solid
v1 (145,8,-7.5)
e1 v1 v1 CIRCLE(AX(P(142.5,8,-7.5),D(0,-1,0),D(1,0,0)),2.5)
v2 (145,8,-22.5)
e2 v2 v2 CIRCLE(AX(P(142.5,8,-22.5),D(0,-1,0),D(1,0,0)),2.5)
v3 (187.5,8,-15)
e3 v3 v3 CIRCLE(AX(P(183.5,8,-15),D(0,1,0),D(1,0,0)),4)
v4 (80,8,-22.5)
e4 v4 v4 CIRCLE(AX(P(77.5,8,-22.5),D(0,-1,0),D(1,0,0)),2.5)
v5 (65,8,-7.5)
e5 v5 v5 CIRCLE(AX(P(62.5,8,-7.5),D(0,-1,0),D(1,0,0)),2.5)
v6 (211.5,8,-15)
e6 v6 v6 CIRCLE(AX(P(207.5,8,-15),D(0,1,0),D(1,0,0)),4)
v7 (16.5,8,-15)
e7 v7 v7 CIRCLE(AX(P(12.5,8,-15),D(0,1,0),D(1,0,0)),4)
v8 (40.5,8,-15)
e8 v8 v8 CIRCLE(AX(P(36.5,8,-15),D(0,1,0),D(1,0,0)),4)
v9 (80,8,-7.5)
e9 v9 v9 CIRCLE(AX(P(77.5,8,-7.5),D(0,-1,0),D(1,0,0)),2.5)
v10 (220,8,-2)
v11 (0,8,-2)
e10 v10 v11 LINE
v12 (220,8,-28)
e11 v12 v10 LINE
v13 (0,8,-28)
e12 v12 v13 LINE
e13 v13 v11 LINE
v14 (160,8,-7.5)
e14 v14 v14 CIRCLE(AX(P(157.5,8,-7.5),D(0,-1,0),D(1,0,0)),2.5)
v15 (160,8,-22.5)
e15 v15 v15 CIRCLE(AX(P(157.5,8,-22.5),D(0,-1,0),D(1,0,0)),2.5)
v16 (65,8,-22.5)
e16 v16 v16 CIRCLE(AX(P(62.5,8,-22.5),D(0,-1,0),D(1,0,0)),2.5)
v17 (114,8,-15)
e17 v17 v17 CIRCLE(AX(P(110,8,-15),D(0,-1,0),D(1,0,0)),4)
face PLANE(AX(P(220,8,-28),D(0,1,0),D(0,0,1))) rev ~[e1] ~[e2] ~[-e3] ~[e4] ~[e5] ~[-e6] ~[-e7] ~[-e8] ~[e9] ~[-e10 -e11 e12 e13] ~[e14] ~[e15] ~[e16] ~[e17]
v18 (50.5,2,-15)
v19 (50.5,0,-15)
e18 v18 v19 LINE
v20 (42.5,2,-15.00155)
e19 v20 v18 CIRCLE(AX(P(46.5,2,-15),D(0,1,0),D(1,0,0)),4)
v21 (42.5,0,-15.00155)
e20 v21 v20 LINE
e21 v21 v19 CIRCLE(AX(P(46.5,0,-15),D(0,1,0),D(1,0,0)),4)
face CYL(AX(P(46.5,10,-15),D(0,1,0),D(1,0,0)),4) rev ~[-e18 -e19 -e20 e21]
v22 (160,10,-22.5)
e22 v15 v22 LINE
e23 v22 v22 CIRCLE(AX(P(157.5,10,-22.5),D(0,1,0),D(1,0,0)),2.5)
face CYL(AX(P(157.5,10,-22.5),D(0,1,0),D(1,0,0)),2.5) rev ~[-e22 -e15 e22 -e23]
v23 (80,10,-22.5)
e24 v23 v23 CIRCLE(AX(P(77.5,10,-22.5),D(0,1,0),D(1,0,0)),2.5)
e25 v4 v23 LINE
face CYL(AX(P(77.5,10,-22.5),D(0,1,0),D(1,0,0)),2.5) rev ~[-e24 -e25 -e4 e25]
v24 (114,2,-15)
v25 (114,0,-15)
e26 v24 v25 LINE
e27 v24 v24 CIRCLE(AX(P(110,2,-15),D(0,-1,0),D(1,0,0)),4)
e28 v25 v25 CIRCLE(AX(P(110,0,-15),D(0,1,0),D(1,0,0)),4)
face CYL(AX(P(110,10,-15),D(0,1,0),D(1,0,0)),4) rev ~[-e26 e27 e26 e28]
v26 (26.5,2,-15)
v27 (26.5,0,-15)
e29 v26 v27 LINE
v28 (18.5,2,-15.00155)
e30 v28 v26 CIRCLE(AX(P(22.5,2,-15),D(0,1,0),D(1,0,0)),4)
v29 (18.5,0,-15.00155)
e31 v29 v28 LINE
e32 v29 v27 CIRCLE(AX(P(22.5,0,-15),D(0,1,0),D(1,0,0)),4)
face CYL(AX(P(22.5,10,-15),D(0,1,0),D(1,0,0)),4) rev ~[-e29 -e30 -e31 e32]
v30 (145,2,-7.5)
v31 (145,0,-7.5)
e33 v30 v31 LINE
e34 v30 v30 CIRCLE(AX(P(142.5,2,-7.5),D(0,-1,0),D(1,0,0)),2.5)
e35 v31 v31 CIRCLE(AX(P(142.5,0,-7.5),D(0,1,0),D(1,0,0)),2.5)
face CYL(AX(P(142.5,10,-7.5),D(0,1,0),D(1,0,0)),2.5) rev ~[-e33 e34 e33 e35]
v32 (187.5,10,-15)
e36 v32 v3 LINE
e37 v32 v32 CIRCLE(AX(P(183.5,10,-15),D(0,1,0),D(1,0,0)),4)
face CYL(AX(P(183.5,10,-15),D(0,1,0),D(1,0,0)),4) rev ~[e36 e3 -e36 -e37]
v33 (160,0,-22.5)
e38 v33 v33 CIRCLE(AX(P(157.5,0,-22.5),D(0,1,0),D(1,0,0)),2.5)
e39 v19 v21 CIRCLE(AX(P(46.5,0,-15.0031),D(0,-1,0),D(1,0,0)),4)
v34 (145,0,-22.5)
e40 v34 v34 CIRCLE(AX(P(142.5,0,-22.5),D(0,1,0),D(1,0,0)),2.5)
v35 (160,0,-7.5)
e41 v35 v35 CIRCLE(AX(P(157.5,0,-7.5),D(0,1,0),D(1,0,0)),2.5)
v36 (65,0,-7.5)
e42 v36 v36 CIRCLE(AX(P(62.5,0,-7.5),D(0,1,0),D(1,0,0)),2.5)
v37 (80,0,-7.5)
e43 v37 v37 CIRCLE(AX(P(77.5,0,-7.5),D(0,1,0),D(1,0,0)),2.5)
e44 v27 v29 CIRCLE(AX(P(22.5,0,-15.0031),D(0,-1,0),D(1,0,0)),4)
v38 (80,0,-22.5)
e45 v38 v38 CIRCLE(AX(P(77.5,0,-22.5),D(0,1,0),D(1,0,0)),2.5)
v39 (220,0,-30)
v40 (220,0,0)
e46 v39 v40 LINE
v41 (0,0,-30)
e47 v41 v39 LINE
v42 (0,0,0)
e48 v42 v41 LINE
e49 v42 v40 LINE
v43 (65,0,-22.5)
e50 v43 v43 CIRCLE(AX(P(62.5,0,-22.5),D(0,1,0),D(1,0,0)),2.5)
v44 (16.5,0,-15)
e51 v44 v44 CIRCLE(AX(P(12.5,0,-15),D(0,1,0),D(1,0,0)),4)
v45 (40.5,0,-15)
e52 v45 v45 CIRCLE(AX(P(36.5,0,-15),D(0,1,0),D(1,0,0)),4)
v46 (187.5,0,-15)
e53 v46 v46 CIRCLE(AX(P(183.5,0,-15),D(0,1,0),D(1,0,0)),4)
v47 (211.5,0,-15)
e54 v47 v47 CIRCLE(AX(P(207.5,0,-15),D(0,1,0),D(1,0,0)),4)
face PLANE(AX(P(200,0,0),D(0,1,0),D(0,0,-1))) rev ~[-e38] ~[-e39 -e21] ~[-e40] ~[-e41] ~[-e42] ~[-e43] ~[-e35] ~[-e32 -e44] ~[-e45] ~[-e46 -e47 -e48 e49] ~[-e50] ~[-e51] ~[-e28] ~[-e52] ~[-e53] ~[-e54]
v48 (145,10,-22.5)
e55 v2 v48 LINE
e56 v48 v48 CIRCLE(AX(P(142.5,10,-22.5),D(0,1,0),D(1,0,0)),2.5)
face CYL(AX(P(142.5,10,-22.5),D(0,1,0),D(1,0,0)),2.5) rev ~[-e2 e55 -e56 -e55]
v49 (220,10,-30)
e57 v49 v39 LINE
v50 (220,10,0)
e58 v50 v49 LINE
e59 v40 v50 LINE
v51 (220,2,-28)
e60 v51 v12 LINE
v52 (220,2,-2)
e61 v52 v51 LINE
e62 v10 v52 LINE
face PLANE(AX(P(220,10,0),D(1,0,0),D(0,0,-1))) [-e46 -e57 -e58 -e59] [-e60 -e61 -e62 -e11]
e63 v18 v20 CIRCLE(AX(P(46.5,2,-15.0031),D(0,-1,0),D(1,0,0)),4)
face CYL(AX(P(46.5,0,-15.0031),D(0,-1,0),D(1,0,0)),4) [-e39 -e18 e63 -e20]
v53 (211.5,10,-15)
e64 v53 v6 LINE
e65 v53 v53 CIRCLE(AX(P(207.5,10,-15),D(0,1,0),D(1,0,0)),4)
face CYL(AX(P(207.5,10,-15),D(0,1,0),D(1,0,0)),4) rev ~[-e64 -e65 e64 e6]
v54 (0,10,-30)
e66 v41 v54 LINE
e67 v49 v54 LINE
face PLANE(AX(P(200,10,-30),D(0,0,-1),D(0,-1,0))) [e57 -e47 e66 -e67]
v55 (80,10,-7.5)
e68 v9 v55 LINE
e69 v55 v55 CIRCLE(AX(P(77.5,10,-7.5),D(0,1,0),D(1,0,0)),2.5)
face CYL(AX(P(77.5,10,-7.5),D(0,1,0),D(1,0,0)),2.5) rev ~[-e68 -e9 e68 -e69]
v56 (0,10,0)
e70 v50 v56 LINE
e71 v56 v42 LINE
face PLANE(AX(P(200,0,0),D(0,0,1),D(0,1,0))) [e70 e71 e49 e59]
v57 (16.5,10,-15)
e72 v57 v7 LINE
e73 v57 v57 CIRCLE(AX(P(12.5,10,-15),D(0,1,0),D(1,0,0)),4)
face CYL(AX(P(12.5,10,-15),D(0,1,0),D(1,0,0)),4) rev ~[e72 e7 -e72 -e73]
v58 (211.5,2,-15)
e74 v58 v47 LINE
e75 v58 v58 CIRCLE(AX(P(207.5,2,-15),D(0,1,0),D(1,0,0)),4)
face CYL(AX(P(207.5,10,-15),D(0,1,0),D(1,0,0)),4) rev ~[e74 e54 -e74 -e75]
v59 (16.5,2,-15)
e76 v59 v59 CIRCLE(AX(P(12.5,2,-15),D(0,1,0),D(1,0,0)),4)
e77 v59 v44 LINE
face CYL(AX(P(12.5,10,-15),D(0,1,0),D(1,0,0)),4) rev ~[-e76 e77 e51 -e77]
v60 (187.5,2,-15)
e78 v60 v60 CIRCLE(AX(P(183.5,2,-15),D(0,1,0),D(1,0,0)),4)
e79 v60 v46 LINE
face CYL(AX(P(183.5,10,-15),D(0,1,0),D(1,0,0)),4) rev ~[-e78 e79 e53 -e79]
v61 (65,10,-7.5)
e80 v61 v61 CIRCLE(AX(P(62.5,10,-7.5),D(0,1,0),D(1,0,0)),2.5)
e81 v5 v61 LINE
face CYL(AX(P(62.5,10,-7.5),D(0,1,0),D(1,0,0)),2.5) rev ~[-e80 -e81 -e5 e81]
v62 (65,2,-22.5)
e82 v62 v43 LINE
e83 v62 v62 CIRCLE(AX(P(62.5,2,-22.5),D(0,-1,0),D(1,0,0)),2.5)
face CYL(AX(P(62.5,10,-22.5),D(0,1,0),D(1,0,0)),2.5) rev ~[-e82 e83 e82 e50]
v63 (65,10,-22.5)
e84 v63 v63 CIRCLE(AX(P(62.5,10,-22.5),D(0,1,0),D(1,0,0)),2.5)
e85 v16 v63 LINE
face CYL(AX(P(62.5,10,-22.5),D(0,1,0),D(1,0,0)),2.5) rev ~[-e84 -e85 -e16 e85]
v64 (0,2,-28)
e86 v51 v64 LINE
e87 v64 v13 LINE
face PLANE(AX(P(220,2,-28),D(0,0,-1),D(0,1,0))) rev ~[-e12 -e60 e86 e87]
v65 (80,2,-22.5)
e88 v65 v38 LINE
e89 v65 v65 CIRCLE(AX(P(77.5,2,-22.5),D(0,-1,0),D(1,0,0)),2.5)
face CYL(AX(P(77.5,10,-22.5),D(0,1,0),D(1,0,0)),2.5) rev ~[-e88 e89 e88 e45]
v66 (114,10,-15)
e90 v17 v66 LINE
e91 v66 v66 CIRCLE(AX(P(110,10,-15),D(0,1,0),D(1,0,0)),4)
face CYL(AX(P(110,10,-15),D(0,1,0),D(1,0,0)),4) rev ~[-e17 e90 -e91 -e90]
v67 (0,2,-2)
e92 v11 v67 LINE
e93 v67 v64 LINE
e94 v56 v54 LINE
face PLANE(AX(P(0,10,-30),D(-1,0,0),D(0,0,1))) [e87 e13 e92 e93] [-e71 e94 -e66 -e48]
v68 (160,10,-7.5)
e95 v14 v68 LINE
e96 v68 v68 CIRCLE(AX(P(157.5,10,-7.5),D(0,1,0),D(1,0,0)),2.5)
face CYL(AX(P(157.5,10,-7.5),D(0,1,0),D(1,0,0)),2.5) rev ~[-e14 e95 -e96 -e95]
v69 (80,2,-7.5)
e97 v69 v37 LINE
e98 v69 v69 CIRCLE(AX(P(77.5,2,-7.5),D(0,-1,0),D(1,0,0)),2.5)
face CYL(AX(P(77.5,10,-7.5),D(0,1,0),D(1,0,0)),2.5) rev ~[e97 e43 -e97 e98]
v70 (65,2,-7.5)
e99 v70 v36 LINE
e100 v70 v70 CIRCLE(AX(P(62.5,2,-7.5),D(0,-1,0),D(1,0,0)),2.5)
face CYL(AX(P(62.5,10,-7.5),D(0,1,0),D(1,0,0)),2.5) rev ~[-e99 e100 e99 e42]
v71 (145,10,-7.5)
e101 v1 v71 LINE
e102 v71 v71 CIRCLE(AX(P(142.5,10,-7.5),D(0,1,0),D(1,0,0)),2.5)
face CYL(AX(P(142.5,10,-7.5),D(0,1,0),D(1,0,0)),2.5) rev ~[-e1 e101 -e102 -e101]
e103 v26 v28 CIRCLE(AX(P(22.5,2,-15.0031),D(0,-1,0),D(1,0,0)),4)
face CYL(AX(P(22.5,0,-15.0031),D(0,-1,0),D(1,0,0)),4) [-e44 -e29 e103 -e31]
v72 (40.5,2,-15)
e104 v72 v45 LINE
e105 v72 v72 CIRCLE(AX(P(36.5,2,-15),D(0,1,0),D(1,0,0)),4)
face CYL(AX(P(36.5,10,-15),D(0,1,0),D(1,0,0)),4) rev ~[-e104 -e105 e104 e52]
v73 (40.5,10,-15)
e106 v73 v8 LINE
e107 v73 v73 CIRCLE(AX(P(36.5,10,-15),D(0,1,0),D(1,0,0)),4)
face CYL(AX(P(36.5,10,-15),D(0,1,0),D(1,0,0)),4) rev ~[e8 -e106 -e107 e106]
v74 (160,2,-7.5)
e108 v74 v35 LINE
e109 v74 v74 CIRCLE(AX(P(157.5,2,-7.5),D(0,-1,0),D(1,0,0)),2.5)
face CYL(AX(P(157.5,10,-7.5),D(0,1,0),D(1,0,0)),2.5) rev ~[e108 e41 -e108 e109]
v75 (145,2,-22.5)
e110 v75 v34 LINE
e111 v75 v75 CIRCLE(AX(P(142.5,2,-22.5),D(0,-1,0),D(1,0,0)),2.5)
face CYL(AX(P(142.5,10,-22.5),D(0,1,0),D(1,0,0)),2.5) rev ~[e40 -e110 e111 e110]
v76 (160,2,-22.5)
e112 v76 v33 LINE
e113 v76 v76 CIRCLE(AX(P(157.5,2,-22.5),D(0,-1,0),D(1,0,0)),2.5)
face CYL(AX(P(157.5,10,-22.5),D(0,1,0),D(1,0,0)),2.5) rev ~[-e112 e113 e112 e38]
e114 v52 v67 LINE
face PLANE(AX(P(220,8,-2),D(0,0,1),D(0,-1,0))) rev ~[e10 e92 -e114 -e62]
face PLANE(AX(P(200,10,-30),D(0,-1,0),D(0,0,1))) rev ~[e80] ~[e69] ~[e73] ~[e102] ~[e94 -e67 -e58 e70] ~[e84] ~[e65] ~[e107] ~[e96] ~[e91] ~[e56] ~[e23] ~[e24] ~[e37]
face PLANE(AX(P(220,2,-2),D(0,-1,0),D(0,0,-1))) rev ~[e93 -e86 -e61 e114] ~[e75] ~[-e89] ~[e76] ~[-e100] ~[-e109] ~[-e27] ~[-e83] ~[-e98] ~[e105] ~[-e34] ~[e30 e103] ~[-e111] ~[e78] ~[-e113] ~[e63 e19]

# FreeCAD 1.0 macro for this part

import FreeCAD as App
import Part
import Sketcher

V = App.Vector


def add_polygon(sketch, points):
    """Adds a closed chain of lines whose ends are joined by coincident constraints."""
    first, n = sketch.GeometryCount, len(points)
    for a, b in zip(points, points[1:] + points[:1]):
        sketch.addGeometry(Part.LineSegment(App.Vector(*a, 0), App.Vector(*b, 0)), False)
    for i in range(n):
        sketch.addConstraint(Sketcher.Constraint("Coincident", first + i, 2, first + (i + 1) % n, 1))

doc = App.newDocument("Part")
body = doc.addObject("PartDesign::Body", "Body")

# Sketch on YZ plane
sketch1 = body.newObject("Sketcher::SketchObject", "Sketch")
sketch1.AttachmentSupport = (doc.getObject("YZ_Plane"), [""])
sketch1.MapMode = "FlatFace"
add_polygon(sketch1, [(10, 0), (0, 0), (0, -30), (10, -30)])  # lines 0-3
sketch1.addConstraint(Sketcher.Constraint("Horizontal", 0))
sketch1.addConstraint(Sketcher.Constraint("Vertical", 1))
sketch1.addConstraint(Sketcher.Constraint("Horizontal", 2))
sketch1.addConstraint(Sketcher.Constraint("Vertical", 3))
sketch1.addConstraint(Sketcher.Constraint("Coincident", 0, 2, -1, 1))
sketch1.addConstraint(Sketcher.Constraint("DistanceX", 0, 2, 0, 1, 10.0))
sketch1.addConstraint(Sketcher.Constraint("DistanceY", 1, 2, 1, 1, 30.0))
pad1 = body.newObject("PartDesign::Pad", "Pad")
pad1.Profile = sketch1
pad1.Length = 200

# Sketch on YZ plane
sketch2 = body.newObject("Sketcher::SketchObject", "Sketch001")
sketch2.AttachmentSupport = (doc.getObject("YZ_Plane"), [""])
sketch2.MapMode = "FlatFace"
sketch2.AttachmentOffset = App.Placement(V(0, 0, 200), App.Rotation())
add_polygon(sketch2, [(1, -29), (9, -29), (9, -1), (1, -1)])  # lines 0-3
sketch2.addConstraint(Sketcher.Constraint("Horizontal", 0))
sketch2.addConstraint(Sketcher.Constraint("Vertical", 1))
sketch2.addConstraint(Sketcher.Constraint("Horizontal", 2))
sketch2.addConstraint(Sketcher.Constraint("Vertical", 3))
sketch2.addConstraint(Sketcher.Constraint("DistanceX", 0, 1, 0, 2, 8.0))
sketch2.addConstraint(Sketcher.Constraint("DistanceY", 1, 1, 1, 2, 28.0))
sketch2.addConstraint(Sketcher.Constraint("DistanceX", -1, 1, 0, 2, 9.0))
sketch2.addConstraint(Sketcher.Constraint("DistanceY", 0, 2, -1, 1, 29.0))
pocket1 = body.newObject("PartDesign::Pocket", "Pocket")
pocket1.Profile = sketch2
pocket1.Length = 303.2375

# Sketch on YZ plane
sketch3 = body.newObject("Sketcher::SketchObject", "Sketch002")
sketch3.AttachmentSupport = (doc.getObject("YZ_Plane"), [""])
sketch3.MapMode = "FlatFace"
sketch3.AttachmentOffset = App.Placement(V(0, 0, 200), App.Rotation())
add_polygon(sketch3, [(10, 0), (0, 0), (0, -30), (10, -30)])  # lines 0-3
sketch3.addConstraint(Sketcher.Constraint("Horizontal", 0))
sketch3.addConstraint(Sketcher.Constraint("Vertical", 1))
sketch3.addConstraint(Sketcher.Constraint("Horizontal", 2))
sketch3.addConstraint(Sketcher.Constraint("Vertical", 3))
sketch3.addConstraint(Sketcher.Constraint("Coincident", 0, 2, -1, 1))
sketch3.addConstraint(Sketcher.Constraint("DistanceX", 0, 2, 0, 1, 10.0))
sketch3.addConstraint(Sketcher.Constraint("DistanceY", 1, 2, 1, 1, 30.0))
pad2 = body.newObject("PartDesign::Pad", "Pad001")
pad2.Profile = sketch3
pad2.Length = 20

# Sketch on YZ plane
sketch4 = body.newObject("Sketcher::SketchObject", "Sketch003")
sketch4.AttachmentSupport = (doc.getObject("YZ_Plane"), [""])
sketch4.MapMode = "FlatFace"
sketch4.AttachmentOffset = App.Placement(V(0, 0, 220), App.Rotation())
add_polygon(sketch4, [(9, -1), (1, -1), (1, -29), (9, -29)])  # lines 0-3
sketch4.addConstraint(Sketcher.Constraint("Horizontal", 0))
sketch4.addConstraint(Sketcher.Constraint("Vertical", 1))
sketch4.addConstraint(Sketcher.Constraint("Horizontal", 2))
sketch4.addConstraint(Sketcher.Constraint("Vertical", 3))
sketch4.addConstraint(Sketcher.Constraint("DistanceX", 0, 2, 0, 1, 8.0))
sketch4.addConstraint(Sketcher.Constraint("DistanceY", 1, 2, 1, 1, 28.0))
sketch4.addConstraint(Sketcher.Constraint("DistanceX", -1, 1, 0, 2, 1.0))
sketch4.addConstraint(Sketcher.Constraint("DistanceY", 0, 2, -1, 1, 1.0))
pocket2 = body.newObject("PartDesign::Pocket", "Pocket001")
pocket2.Profile = sketch4
pocket2.Length = 750.25

# Sketch on XZ plane
sketch5 = body.newObject("Sketcher::SketchObject", "Sketch004")
sketch5.AttachmentSupport = (doc.getObject("XZ_Plane"), [""])
sketch5.MapMode = "FlatFace"
sketch5.AttachmentOffset = App.Placement(V(0, 0, -10), App.Rotation())
sketch5.addGeometry(Part.Circle(V(22.5, -15, 0), V(0, 0, 1), 4), False)
sketch5.addGeometry(Part.Circle(V(46.5, -15, 0), V(0, 0, 1), 4), False)
sketch5.addConstraint(Sketcher.Constraint("Equal", 0, 1))
sketch5.addConstraint(Sketcher.Constraint("Horizontal", 0, 3, 1, 3))
sketch5.addConstraint(Sketcher.Constraint("Diameter", 0, 8.0))
sketch5.addConstraint(Sketcher.Constraint("DistanceY", 0, 3, -1, 1, 15.0))
sketch5.addConstraint(Sketcher.Constraint("DistanceX", 0, 3, 1, 3, 24.0))
sketch5.addConstraint(Sketcher.Constraint("DistanceX", -1, 1, 0, 3, 22.5))
pocket3 = body.newObject("PartDesign::Pocket", "Pocket002")
pocket3.Profile = sketch5
pocket3.Length = 63.025
pocket3.Reversed = True

# Sketch on XZ plane
sketch6 = body.newObject("Sketcher::SketchObject", "Sketch005")
sketch6.AttachmentSupport = (doc.getObject("XZ_Plane"), [""])
sketch6.MapMode = "FlatFace"
sketch6.AttachmentOffset = App.Placement(V(0, 0, -10), App.Rotation())
sketch6.addGeometry(Part.Circle(V(173.5, -15, 0), V(0, 0, 1), 4), False)
sketch6.addGeometry(Part.Circle(V(197.5, -15, 0), V(0, 0, 1), 4), False)
sketch6.addConstraint(Sketcher.Constraint("Equal", 0, 1))
sketch6.addConstraint(Sketcher.Constraint("Horizontal", 0, 3, 1, 3))
sketch6.addConstraint(Sketcher.Constraint("Diameter", 0, 8.0))
sketch6.addConstraint(Sketcher.Constraint("DistanceY", 0, 3, -1, 1, 15.0))
sketch6.addConstraint(Sketcher.Constraint("DistanceX", 0, 3, 1, 3, 24.0))
sketch6.addConstraint(Sketcher.Constraint("DistanceX", -1, 1, 0, 3, 173.5))
pocket4 = body.newObject("PartDesign::Pocket", "Pocket003")
pocket4.Profile = sketch6
pocket4.Length = 120.175
pocket4.Reversed = True

# Sketch on XZ plane
sketch7 = body.newObject("Sketcher::SketchObject", "Sketch006")
sketch7.AttachmentSupport = (doc.getObject("XZ_Plane"), [""])
sketch7.MapMode = "FlatFace"
sketch7.AttachmentOffset = App.Placement(V(0, 0, -10), App.Rotation())
add_polygon(sketch7, [(10, -30), (0, -30), (0, 0), (10, 0)])  # lines 0-3
sketch7.addConstraint(Sketcher.Constraint("Horizontal", 0))
sketch7.addConstraint(Sketcher.Constraint("Vertical", 1))
sketch7.addConstraint(Sketcher.Constraint("Horizontal", 2))
sketch7.addConstraint(Sketcher.Constraint("Vertical", 3))
sketch7.addConstraint(Sketcher.Constraint("Coincident", 1, 2, -1, 1))
sketch7.addConstraint(Sketcher.Constraint("DistanceX", 0, 2, 0, 1, 10.0))
sketch7.addConstraint(Sketcher.Constraint("DistanceY", 1, 1, 1, 2, 30.0))
pocket5 = body.newObject("PartDesign::Pocket", "Pocket004")
pocket5.Profile = sketch7
pocket5.Length = 98.9
pocket5.Reversed = True

# Sketch on XZ plane
sketch8 = body.newObject("Sketcher::SketchObject", "Sketch007")
sketch8.AttachmentSupport = (doc.getObject("XZ_Plane"), [""])
sketch8.MapMode = "FlatFace"
sketch8.AttachmentOffset = App.Placement(V(0, 0, -10), App.Rotation())
add_polygon(sketch8, [(220, -30), (210, -30), (210, 0), (220, 0)])  # lines 0-3
sketch8.addConstraint(Sketcher.Constraint("Horizontal", 0))
sketch8.addConstraint(Sketcher.Constraint("Vertical", 1))
sketch8.addConstraint(Sketcher.Constraint("Horizontal", 2))
sketch8.addConstraint(Sketcher.Constraint("Vertical", 3))
sketch8.addConstraint(Sketcher.Constraint("PointOnObject", 1, 2, -1))
sketch8.addConstraint(Sketcher.Constraint("DistanceX", 0, 2, 0, 1, 10.0))
sketch8.addConstraint(Sketcher.Constraint("DistanceY", 1, 1, 1, 2, 30.0))
sketch8.addConstraint(Sketcher.Constraint("DistanceX", -1, 1, 0, 2, 210.0))
pocket6 = body.newObject("PartDesign::Pocket", "Pocket005")
pocket6.Profile = sketch8
pocket6.Length = 67.7875
pocket6.Reversed = True

# Sketch on XZ plane
sketch9 = body.newObject("Sketcher::SketchObject", "Sketch008")
sketch9.AttachmentSupport = (doc.getObject("XZ_Plane"), [""])
sketch9.MapMode = "FlatFace"
sketch9.AttachmentOffset = App.Placement(V(0, 0, -10), App.Rotation())
sketch9.addGeometry(Part.Circle(V(62.5, -7.5, 0), V(0, 0, 1), 2.5), False)
sketch9.addGeometry(Part.Circle(V(62.5, -22.5, 0), V(0, 0, 1), 2.5), False)
sketch9.addConstraint(Sketcher.Constraint("Equal", 0, 1))
sketch9.addConstraint(Sketcher.Constraint("Vertical", 0, 3, 1, 3))
sketch9.addConstraint(Sketcher.Constraint("Diameter", 0, 5.0))
sketch9.addConstraint(Sketcher.Constraint("DistanceY", 1, 3, 0, 3, 15.0))
sketch9.addConstraint(Sketcher.Constraint("DistanceX", -1, 1, 0, 3, 62.5))
sketch9.addConstraint(Sketcher.Constraint("DistanceY", 0, 3, -1, 1, 7.5))
pocket7 = body.newObject("PartDesign::Pocket", "Pocket006")
pocket7.Profile = sketch9
pocket7.Length = 97.95
pocket7.Reversed = True

# Sketch on XZ plane
sketch10 = body.newObject("Sketcher::SketchObject", "Sketch009")
sketch10.AttachmentSupport = (doc.getObject("XZ_Plane"), [""])
sketch10.MapMode = "FlatFace"
sketch10.AttachmentOffset = App.Placement(V(0, 0, -10), App.Rotation())
sketch10.addGeometry(Part.Circle(V(77.5, -22.5, 0), V(0, 0, 1), 2.5), False)
sketch10.addGeometry(Part.Circle(V(77.5, -7.5, 0), V(0, 0, 1), 2.5), False)
sketch10.addConstraint(Sketcher.Constraint("Equal", 0, 1))
sketch10.addConstraint(Sketcher.Constraint("Vertical", 0, 3, 1, 3))
sketch10.addConstraint(Sketcher.Constraint("Diameter", 0, 5.0))
sketch10.addConstraint(Sketcher.Constraint("DistanceY", 0, 3, 1, 3, 15.0))
sketch10.addConstraint(Sketcher.Constraint("DistanceX", -1, 1, 0, 3, 77.5))
sketch10.addConstraint(Sketcher.Constraint("DistanceY", 0, 3, -1, 1, 22.5))
pocket8 = body.newObject("PartDesign::Pocket", "Pocket007")
pocket8.Profile = sketch10
pocket8.Length = 108.425
pocket8.Reversed = True

# Sketch on XZ plane
sketch11 = body.newObject("Sketcher::SketchObject", "Sketch010")
sketch11.AttachmentSupport = (doc.getObject("XZ_Plane"), [""])
sketch11.MapMode = "FlatFace"
sketch11.AttachmentOffset = App.Placement(V(0, 0, -10), App.Rotation())
sketch11.addGeometry(Part.Circle(V(157.5, -22.5, 0), V(0, 0, 1), 2.5), False)
sketch11.addGeometry(Part.Circle(V(142.5, -22.5, 0), V(0, 0, 1), 2.5), False)
sketch11.addGeometry(Part.Circle(V(142.5, -7.5, 0), V(0, 0, 1), 2.5), False)
sketch11.addGeometry(Part.Circle(V(157.5, -7.5, 0), V(0, 0, 1), 2.5), False)
sketch11.addConstraint(Sketcher.Constraint("Equal", 0, 1))
sketch11.addConstraint(Sketcher.Constraint("Equal", 1, 2))
sketch11.addConstraint(Sketcher.Constraint("Equal", 2, 3))
sketch11.addConstraint(Sketcher.Constraint("Horizontal", 0, 3, 1, 3))
sketch11.addConstraint(Sketcher.Constraint("Horizontal", 2, 3, 3, 3))
sketch11.addConstraint(Sketcher.Constraint("Vertical", 1, 3, 2, 3))
sketch11.addConstraint(Sketcher.Constraint("Vertical", 0, 3, 3, 3))
sketch11.addConstraint(Sketcher.Constraint("Diameter", 0, 5.0))
sketch11.addConstraint(Sketcher.Constraint("DistanceX", 1, 3, 0, 3, 15.0))
sketch11.addConstraint(Sketcher.Constraint("DistanceY", 1, 3, 2, 3, 15.0))
sketch11.addConstraint(Sketcher.Constraint("DistanceX", -1, 1, 0, 3, 157.5))
sketch11.addConstraint(Sketcher.Constraint("DistanceY", 0, 3, -1, 1, 22.5))
pocket9 = body.newObject("PartDesign::Pocket", "Pocket008")
pocket9.Profile = sketch11
pocket9.Length = 59.85
pocket9.Reversed = True

# Sketch on XZ plane
sketch12 = body.newObject("Sketcher::SketchObject", "Sketch011")
sketch12.AttachmentSupport = (doc.getObject("XZ_Plane"), [""])
sketch12.MapMode = "FlatFace"
sketch12.AttachmentOffset = App.Placement(V(0, 0, -10), App.Rotation())
sketch12.addGeometry(Part.Circle(V(110, -15, 0), V(0, 0, 1), 4), False)
sketch12.addConstraint(Sketcher.Constraint("Diameter", 0, 8.0))
sketch12.addConstraint(Sketcher.Constraint("DistanceX", -1, 1, 0, 3, 110.0))
sketch12.addConstraint(Sketcher.Constraint("DistanceY", 0, 3, -1, 1, 15.0))
pocket10 = body.newObject("PartDesign::Pocket", "Pocket009")
pocket10.Profile = sketch12
pocket10.Length = 53.5
pocket10.Reversed = True

# Sketch on YZ plane
sketch13 = body.newObject("Sketcher::SketchObject", "Sketch012")
sketch13.AttachmentSupport = (doc.getObject("YZ_Plane"), [""])
sketch13.MapMode = "FlatFace"
sketch13.AttachmentOffset = App.Placement(V(0, 0, 10), App.Rotation())
add_polygon(sketch13, [(0, -30), (0, 0), (10, 0), (10, -30)])  # lines 0-3
sketch13.addConstraint(Sketcher.Constraint("Vertical", 0))
sketch13.addConstraint(Sketcher.Constraint("Horizontal", 1))
sketch13.addConstraint(Sketcher.Constraint("Vertical", 2))
sketch13.addConstraint(Sketcher.Constraint("Horizontal", 3))
sketch13.addConstraint(Sketcher.Constraint("Coincident", 0, 2, -1, 1))
sketch13.addConstraint(Sketcher.Constraint("DistanceX", 1, 1, 1, 2, 10.0))
sketch13.addConstraint(Sketcher.Constraint("DistanceY", 0, 1, 0, 2, 30.0))
pad3 = body.newObject("PartDesign::Pad", "Pad002")
pad3.Profile = sketch13
pad3.Length = 10
pad3.Reversed = True

# Sketch on YZ plane
sketch14 = body.newObject("Sketcher::SketchObject", "Sketch013")
sketch14.AttachmentSupport = (doc.getObject("YZ_Plane"), [""])
sketch14.MapMode = "FlatFace"
add_polygon(sketch14, [(9, -1), (9, -29), (1, -29), (1, -1)])  # lines 0-3
sketch14.addConstraint(Sketcher.Constraint("Vertical", 0))
sketch14.addConstraint(Sketcher.Constraint("Horizontal", 1))
sketch14.addConstraint(Sketcher.Constraint("Vertical", 2))
sketch14.addConstraint(Sketcher.Constraint("Horizontal", 3))
sketch14.addConstraint(Sketcher.Constraint("DistanceX", 1, 2, 1, 1, 8.0))
sketch14.addConstraint(Sketcher.Constraint("DistanceY", 0, 2, 0, 1, 28.0))
sketch14.addConstraint(Sketcher.Constraint("DistanceX", -1, 1, 0, 2, 9.0))
sketch14.addConstraint(Sketcher.Constraint("DistanceY", 0, 2, -1, 1, 29.0))
pocket11 = body.newObject("PartDesign::Pocket", "Pocket010")
pocket11.Profile = sketch14
pocket11.Length = 34.45
pocket11.Reversed = True

# Sketch on YZ plane
sketch15 = body.newObject("Sketcher::SketchObject", "Sketch014")
sketch15.AttachmentSupport = (doc.getObject("YZ_Plane"), [""])
sketch15.MapMode = "FlatFace"
sketch15.AttachmentOffset = App.Placement(V(0, 0, 210), App.Rotation())
add_polygon(sketch15, [(0, 0), (0, -30), (10, -30), (10, 0)])  # lines 0-3
sketch15.addConstraint(Sketcher.Constraint("Vertical", 0))
sketch15.addConstraint(Sketcher.Constraint("Horizontal", 1))
sketch15.addConstraint(Sketcher.Constraint("Vertical", 2))
sketch15.addConstraint(Sketcher.Constraint("Horizontal", 3))
sketch15.addConstraint(Sketcher.Constraint("Coincident", 3, 2, -1, 1))
sketch15.addConstraint(Sketcher.Constraint("DistanceX", 1, 1, 1, 2, 10.0))
sketch15.addConstraint(Sketcher.Constraint("DistanceY", 0, 2, 0, 1, 30.0))
pad4 = body.newObject("PartDesign::Pad", "Pad003")
pad4.Profile = sketch15
pad4.Length = 10

# Sketch on YZ plane
sketch16 = body.newObject("Sketcher::SketchObject", "Sketch015")
sketch16.AttachmentSupport = (doc.getObject("YZ_Plane"), [""])
sketch16.MapMode = "FlatFace"
add_polygon(sketch16, [(8, -2), (8, -28), (2, -28), (2, -2)])  # lines 0-3
sketch16.addConstraint(Sketcher.Constraint("Vertical", 0))
sketch16.addConstraint(Sketcher.Constraint("Horizontal", 1))
sketch16.addConstraint(Sketcher.Constraint("Vertical", 2))
sketch16.addConstraint(Sketcher.Constraint("Horizontal", 3))
sketch16.addConstraint(Sketcher.Constraint("DistanceX", 1, 2, 1, 1, 6.0))
sketch16.addConstraint(Sketcher.Constraint("DistanceY", 0, 2, 0, 1, 26.0))
sketch16.addConstraint(Sketcher.Constraint("DistanceX", -1, 1, 0, 2, 8.0))
sketch16.addConstraint(Sketcher.Constraint("DistanceY", 0, 2, -1, 1, 28.0))
pad5 = body.newObject("PartDesign::Pad", "Pad004")
pad5.Profile = sketch16
pad5.Length = 220

# Sketch on YZ plane
sketch17 = body.newObject("Sketcher::SketchObject", "Sketch016")
sketch17.AttachmentSupport = (doc.getObject("YZ_Plane"), [""])
sketch17.MapMode = "FlatFace"
sketch17.AttachmentOffset = App.Placement(V(0, 0, 220), App.Rotation())
add_polygon(sketch17, [(8, -2), (2, -2), (2, -28), (8, -28)])  # lines 0-3
sketch17.addConstraint(Sketcher.Constraint("Horizontal", 0))
sketch17.addConstraint(Sketcher.Constraint("Vertical", 1))
sketch17.addConstraint(Sketcher.Constraint("Horizontal", 2))
sketch17.addConstraint(Sketcher.Constraint("Vertical", 3))
sketch17.addConstraint(Sketcher.Constraint("DistanceX", 0, 2, 0, 1, 6.0))
sketch17.addConstraint(Sketcher.Constraint("DistanceY", 1, 2, 1, 1, 26.0))
sketch17.addConstraint(Sketcher.Constraint("DistanceX", -1, 1, 0, 2, 2.0))
sketch17.addConstraint(Sketcher.Constraint("DistanceY", 0, 2, -1, 1, 2.0))
pocket12 = body.newObject("PartDesign::Pocket", "Pocket011")
pocket12.Profile = sketch17
pocket12.Length = 351.5

# Sketch on YZ plane
sketch18 = body.newObject("Sketcher::SketchObject", "Sketch017")
sketch18.AttachmentSupport = (doc.getObject("YZ_Plane"), [""])
sketch18.MapMode = "FlatFace"
add_polygon(sketch18, [(1, -1), (9, -1), (9, -29.0076), (1, -29.0076)])  # lines 0-3
add_polygon(sketch18, [(2, -28), (8, -28), (8, -2), (2, -2)])  # lines 4-7
sketch18.addConstraint(Sketcher.Constraint("Horizontal", 0))
sketch18.addConstraint(Sketcher.Constraint("Vertical", 1))
sketch18.addConstraint(Sketcher.Constraint("Horizontal", 2))
sketch18.addConstraint(Sketcher.Constraint("Vertical", 3))
sketch18.addConstraint(Sketcher.Constraint("Horizontal", 4))
sketch18.addConstraint(Sketcher.Constraint("Vertical", 5))
sketch18.addConstraint(Sketcher.Constraint("Horizontal", 6))
sketch18.addConstraint(Sketcher.Constraint("Vertical", 7))
sketch18.addConstraint(Sketcher.Constraint("DistanceX", 0, 1, 0, 2, 8.0))
sketch18.addConstraint(Sketcher.Constraint("DistanceX", 4, 1, 4, 2, 6.0))
sketch18.addConstraint(Sketcher.Constraint("DistanceY", 5, 1, 5, 2, 26.0))
sketch18.addConstraint(Sketcher.Constraint("DistanceX", -1, 1, 0, 2, 9.0))
sketch18.addConstraint(Sketcher.Constraint("DistanceY", 0, 2, -1, 1, 1.0))
sketch18.addConstraint(Sketcher.Constraint("DistanceX", -1, 1, 4, 2, 8.0))
sketch18.addConstraint(Sketcher.Constraint("DistanceY", 4, 2, -1, 1, 28.0))
sketch18.addConstraint(Sketcher.Constraint("DistanceY", 1, 2, 1, 1, 28.0076))
pocket13 = body.newObject("PartDesign::Pocket", "Pocket012")
pocket13.Profile = sketch18
pocket13.Length = 220
pocket13.Reversed = True

# Sketch on YZ plane
sketch19 = body.newObject("Sketcher::SketchObject", "Sketch018")
sketch19.AttachmentSupport = (doc.getObject("YZ_Plane"), [""])
sketch19.MapMode = "FlatFace"
sketch19.AttachmentOffset = App.Placement(V(0, 0, 220), App.Rotation())
add_polygon(sketch19, [(1, -29.0076), (9, -29.0076), (9, -1), (1, -1)])  # lines 0-3
add_polygon(sketch19, [(2, -28), (2, -2), (8, -2), (8, -28)])  # lines 4-7
sketch19.addConstraint(Sketcher.Constraint("Horizontal", 0))
sketch19.addConstraint(Sketcher.Constraint("Vertical", 1))
sketch19.addConstraint(Sketcher.Constraint("Horizontal", 2))
sketch19.addConstraint(Sketcher.Constraint("Vertical", 3))
sketch19.addConstraint(Sketcher.Constraint("Vertical", 4))
sketch19.addConstraint(Sketcher.Constraint("Horizontal", 5))
sketch19.addConstraint(Sketcher.Constraint("Vertical", 6))
sketch19.addConstraint(Sketcher.Constraint("Horizontal", 7))
sketch19.addConstraint(Sketcher.Constraint("DistanceX", 5, 1, 5, 2, 6.0))
sketch19.addConstraint(Sketcher.Constraint("DistanceY", 4, 1, 4, 2, 26.0))
sketch19.addConstraint(Sketcher.Constraint("DistanceX", 0, 1, 0, 2, 8.0))
sketch19.addConstraint(Sketcher.Constraint("DistanceX", -1, 1, 0, 2, 9.0))
sketch19.addConstraint(Sketcher.Constraint("DistanceY", 1, 2, -1, 1, 1.0))
sketch19.addConstraint(Sketcher.Constraint("DistanceX", -1, 1, 4, 2, 2.0))
sketch19.addConstraint(Sketcher.Constraint("DistanceY", 4, 2, -1, 1, 2.0))
sketch19.addConstraint(Sketcher.Constraint("DistanceY", 1, 1, 1, 2, 28.0076))
pad6 = body.newObject("PartDesign::Pad", "Pad005")
pad6.Profile = sketch19
pad6.Length = 220
pad6.Reversed = True

# Sketch on XZ plane
sketch20 = body.newObject("Sketcher::SketchObject", "Sketch019")
sketch20.AttachmentSupport = (doc.getObject("XZ_Plane"), [""])
sketch20.MapMode = "FlatFace"
sketch20.AttachmentOffset = App.Placement(V(0, 0, -10), App.Rotation())
sketch20.addGeometry(Part.Circle(V(36.5, -15, 0), V(0, 0, 1), 4), False)
sketch20.addConstraint(Sketcher.Constraint("Diameter", 0, 8.0))
sketch20.addConstraint(Sketcher.Constraint("DistanceY", 0, 3, -1, 1, 15.0))
sketch20.addConstraint(Sketcher.Constraint("DistanceX", -1, 1, 0, 3, 36.5))
pocket14 = body.newObject("PartDesign::Pocket", "Pocket013")
pocket14.Profile = sketch20
pocket14.Length = 143.5375
pocket14.Reversed = True

# Sketch on XZ plane
sketch21 = body.newObject("Sketcher::SketchObject", "Sketch020")
sketch21.AttachmentSupport = (doc.getObject("XZ_Plane"), [""])
sketch21.MapMode = "FlatFace"
sketch21.AttachmentOffset = App.Placement(V(0, 0, -10), App.Rotation())
sketch21.addGeometry(Part.Circle(V(12.5, -15, 0), V(0, 0, 1), 4), False)
sketch21.addConstraint(Sketcher.Constraint("Diameter", 0, 8.0))
sketch21.addConstraint(Sketcher.Constraint("DistanceY", 0, 3, -1, 1, 15.0))
sketch21.addConstraint(Sketcher.Constraint("DistanceX", -1, 1, 0, 3, 12.5))
pocket15 = body.newObject("PartDesign::Pocket", "Pocket014")
pocket15.Profile = sketch21
pocket15.Length = 377.1625
pocket15.Reversed = True

# Sketch on XZ plane
sketch22 = body.newObject("Sketcher::SketchObject", "Sketch021")
sketch22.AttachmentSupport = (doc.getObject("XZ_Plane"), [""])
sketch22.MapMode = "FlatFace"
sketch22.AttachmentOffset = App.Placement(V(0, 0, -9), App.Rotation())
sketch22.addGeometry(Part.Circle(V(22.5, -15, 0), V(0, 0, 1), 4), False)
sketch22.addGeometry(Part.Circle(V(46.5, -15, 0), V(0, 0, 1), 4), False)
sketch22.addConstraint(Sketcher.Constraint("Equal", 0, 1))
sketch22.addConstraint(Sketcher.Constraint("Horizontal", 0, 3, 1, 3))
sketch22.addConstraint(Sketcher.Constraint("Diameter", 0, 8.0))
sketch22.addConstraint(Sketcher.Constraint("DistanceY", 0, 3, -1, 1, 15.0))
sketch22.addConstraint(Sketcher.Constraint("DistanceX", 0, 3, 1, 3, 24.0))
sketch22.addConstraint(Sketcher.Constraint("DistanceX", -1, 1, 0, 3, 22.5))
pocket16 = body.newObject("PartDesign::Pocket", "Pocket015")
pocket16.Profile = sketch22
pocket16.Length = 135.6
pocket16.Reversed = True

# Sketch on XZ plane
sketch23 = body.newObject("Sketcher::SketchObject", "Sketch022")
sketch23.AttachmentSupport = (doc.getObject("XZ_Plane"), [""])
sketch23.MapMode = "FlatFace"
sketch23.AttachmentOffset = App.Placement(V(0, 0, -10), App.Rotation())
sketch23.addGeometry(Part.Circle(V(22.5, -15, 0), V(0, 0, 1), 4), False)
sketch23.addGeometry(Part.Circle(V(46.5, -15, 0), V(0, 0, 1), 4), False)
sketch23.addConstraint(Sketcher.Constraint("Equal", 0, 1))
sketch23.addConstraint(Sketcher.Constraint("Horizontal", 0, 3, 1, 3))
sketch23.addConstraint(Sketcher.Constraint("Diameter", 0, 8.0))
sketch23.addConstraint(Sketcher.Constraint("DistanceY", 0, 3, -1, 1, 15.0))
sketch23.addConstraint(Sketcher.Constraint("DistanceX", 0, 3, 1, 3, 24.0))
sketch23.addConstraint(Sketcher.Constraint("DistanceX", -1, 1, 0, 3, 22.5))
pad7 = body.newObject("PartDesign::Pad", "Pad006")
pad7.Profile = sketch23
pad7.Length = 2

# Sketch on XZ plane
sketch24 = body.newObject("Sketcher::SketchObject", "Sketch023")
sketch24.AttachmentSupport = (doc.getObject("XZ_Plane"), [""])
sketch24.MapMode = "FlatFace"
sketch24.addGeometry(Part.Circle(V(46.5, -15.0031, 0), V(0, 0, 1), 4), False)
sketch24.addGeometry(Part.Circle(V(22.5, -15.0031, 0), V(0, 0, 1), 4), False)
sketch24.addConstraint(Sketcher.Constraint("Equal", 0, 1))
sketch24.addConstraint(Sketcher.Constraint("Horizontal", 0, 3, 1, 3))
sketch24.addConstraint(Sketcher.Constraint("Diameter", 0, 8.0))
sketch24.addConstraint(Sketcher.Constraint("DistanceX", 1, 3, 0, 3, 24.0))
sketch24.addConstraint(Sketcher.Constraint("DistanceX", -1, 1, 0, 3, 46.5))
sketch24.addConstraint(Sketcher.Constraint("DistanceY", 0, 3, -1, 1, 15.003))
pad8 = body.newObject("PartDesign::Pad", "Pad007")
pad8.Profile = sketch24
pad8.Length = 2
pad8.Reversed = True

# Sketch on XZ plane
sketch25 = body.newObject("Sketcher::SketchObject", "Sketch024")
sketch25.AttachmentSupport = (doc.getObject("XZ_Plane"), [""])
sketch25.MapMode = "FlatFace"
sketch25.AttachmentOffset = App.Placement(V(0, 0, -10), App.Rotation())
sketch25.addGeometry(Part.Circle(V(207.5, -15, 0), V(0, 0, 1), 4), False)
sketch25.addGeometry(Part.Circle(V(183.5, -15, 0), V(0, 0, 1), 4), False)
sketch25.addConstraint(Sketcher.Constraint("Equal", 0, 1))
sketch25.addConstraint(Sketcher.Constraint("Horizontal", 0, 3, 1, 3))
sketch25.addConstraint(Sketcher.Constraint("Diameter", 0, 8.0))
sketch25.addConstraint(Sketcher.Constraint("DistanceY", 0, 3, -1, 1, 15.0))
sketch25.addConstraint(Sketcher.Constraint("DistanceX", 1, 3, 0, 3, 24.0))
sketch25.addConstraint(Sketcher.Constraint("DistanceX", -1, 1, 0, 3, 207.5))
pocket17 = body.newObject("PartDesign::Pocket", "Pocket016")
pocket17.Profile = sketch25
pocket17.Length = 72.6125
pocket17.Reversed = True

# Sketch on XZ plane
sketch26 = body.newObject("Sketcher::SketchObject", "Sketch025")
sketch26.AttachmentSupport = (doc.getObject("XZ_Plane"), [""])
sketch26.MapMode = "FlatFace"
sketch26.AttachmentOffset = App.Placement(V(0, 0, -10), App.Rotation())
sketch26.addGeometry(Part.Circle(V(197.5, -15, 0), V(0, 0, 1), 4), False)
sketch26.addGeometry(Part.Circle(V(173.5, -15, 0), V(0, 0, 1), 4), False)
sketch26.addConstraint(Sketcher.Constraint("Equal", 0, 1))
sketch26.addConstraint(Sketcher.Constraint("Horizontal", 0, 3, 1, 3))
sketch26.addConstraint(Sketcher.Constraint("Diameter", 0, 8.0))
sketch26.addConstraint(Sketcher.Constraint("DistanceY", 0, 3, -1, 1, 15.0))
sketch26.addConstraint(Sketcher.Constraint("DistanceX", 1, 3, 0, 3, 24.0))
sketch26.addConstraint(Sketcher.Constraint("DistanceX", -1, 1, 0, 3, 197.5))
pad9 = body.newObject("PartDesign::Pad", "Pad008")
pad9.Profile = sketch26
pad9.Length = 2

# Sketch on XZ plane
sketch27 = body.newObject("Sketcher::SketchObject", "Sketch026")
sketch27.AttachmentSupport = (doc.getObject("XZ_Plane"), [""])
sketch27.MapMode = "FlatFace"
sketch27.addGeometry(Part.Circle(V(173.5, -15, 0), V(0, 0, 1), 4), False)
sketch27.addGeometry(Part.Circle(V(197.5, -15, 0), V(0, 0, 1), 4), False)
sketch27.addConstraint(Sketcher.Constraint("Equal", 0, 1))
sketch27.addConstraint(Sketcher.Constraint("Horizontal", 0, 3, 1, 3))
sketch27.addConstraint(Sketcher.Constraint("Diameter", 0, 8.0))
sketch27.addConstraint(Sketcher.Constraint("DistanceY", 0, 3, -1, 1, 15.0))
sketch27.addConstraint(Sketcher.Constraint("DistanceX", 0, 3, 1, 3, 24.0))
sketch27.addConstraint(Sketcher.Constraint("DistanceX", -1, 1, 0, 3, 173.5))
pad10 = body.newObject("PartDesign::Pad", "Pad009")
pad10.Profile = sketch27
pad10.Length = 2
pad10.Reversed = True

# Sketch on XZ plane
sketch28 = body.newObject("Sketcher::SketchObject", "Sketch027")
sketch28.AttachmentSupport = (doc.getObject("XZ_Plane"), [""])
sketch28.MapMode = "FlatFace"
sketch28.addGeometry(Part.Circle(V(62.5, -7.5, 0), V(0, 0, 1), 2.5), False)
sketch28.addGeometry(Part.Circle(V(77.5, -7.5, 0), V(0, 0, 1), 2.5), False)
sketch28.addGeometry(Part.Circle(V(77.5, -22.5, 0), V(0, 0, 1), 2.5), False)
sketch28.addGeometry(Part.Circle(V(62.5, -22.5, 0), V(0, 0, 1), 2.5), False)
sketch28.addGeometry(Part.Circle(V(142.5, -7.5, 0), V(0, 0, 1), 2.5), False)
sketch28.addGeometry(Part.Circle(V(157.5, -7.5, 0), V(0, 0, 1), 2.5), False)
sketch28.addGeometry(Part.Circle(V(157.5, -22.5, 0), V(0, 0, 1), 2.5), False)
sketch28.addGeometry(Part.Circle(V(142.5, -22.5, 0), V(0, 0, 1), 2.5), False)
sketch28.addGeometry(Part.Circle(V(110, -15, 0), V(0, 0, 1), 4), False)
sketch28.addConstraint(Sketcher.Constraint("Equal", 0, 1))
sketch28.addConstraint(Sketcher.Constraint("Equal", 1, 2))
sketch28.addConstraint(Sketcher.Constraint("Equal", 2, 3))
sketch28.addConstraint(Sketcher.Constraint("Equal", 3, 4))
sketch28.addConstraint(Sketcher.Constraint("Equal", 4, 5))
sketch28.addConstraint(Sketcher.Constraint("Equal", 5, 6))
sketch28.addConstraint(Sketcher.Constraint("Equal", 6, 7))
sketch28.addConstraint(Sketcher.Constraint("Horizontal", 0, 3, 1, 3))
sketch28.addConstraint(Sketcher.Constraint("Horizontal", 2, 3, 3, 3))
sketch28.addConstraint(Sketcher.Constraint("Horizontal", 1, 3, 4, 3))
sketch28.addConstraint(Sketcher.Constraint("Horizontal", 4, 3, 5, 3))
sketch28.addConstraint(Sketcher.Constraint("Horizontal", 3, 3, 6, 3))
sketch28.addConstraint(Sketcher.Constraint("Horizontal", 6, 3, 7, 3))
sketch28.addConstraint(Sketcher.Constraint("Vertical", 1, 3, 2, 3))
sketch28.addConstraint(Sketcher.Constraint("Vertical", 0, 3, 3, 3))
sketch28.addConstraint(Sketcher.Constraint("Vertical", 5, 3, 6, 3))
sketch28.addConstraint(Sketcher.Constraint("Vertical", 4, 3, 7, 3))
sketch28.addConstraint(Sketcher.Constraint("Diameter", 0, 5.0))
sketch28.addConstraint(Sketcher.Constraint("Diameter", 8, 8.0))
sketch28.addConstraint(Sketcher.Constraint("DistanceX", -1, 1, 8, 3, 110.0))
sketch28.addConstraint(Sketcher.Constraint("DistanceY", 8, 3, -1, 1, 15.0))
sketch28.addConstraint(Sketcher.Constraint("DistanceX", 0, 3, 1, 3, 15.0))
sketch28.addConstraint(Sketcher.Constraint("DistanceY", 2, 3, 1, 3, 15.0))
sketch28.addConstraint(Sketcher.Constraint("DistanceX", 1, 3, 4, 3, 65.0))
sketch28.addConstraint(Sketcher.Constraint("DistanceX", 4, 3, 5, 3, 15.0))
sketch28.addConstraint(Sketcher.Constraint("DistanceX", -1, 1, 0, 3, 62.5))
sketch28.addConstraint(Sketcher.Constraint("DistanceY", 0, 3, -1, 1, 7.5))
pocket18 = body.newObject("PartDesign::Pocket", "Pocket017")
pocket18.Profile = sketch28
pocket18.Length = 68.675

doc.recompute()
